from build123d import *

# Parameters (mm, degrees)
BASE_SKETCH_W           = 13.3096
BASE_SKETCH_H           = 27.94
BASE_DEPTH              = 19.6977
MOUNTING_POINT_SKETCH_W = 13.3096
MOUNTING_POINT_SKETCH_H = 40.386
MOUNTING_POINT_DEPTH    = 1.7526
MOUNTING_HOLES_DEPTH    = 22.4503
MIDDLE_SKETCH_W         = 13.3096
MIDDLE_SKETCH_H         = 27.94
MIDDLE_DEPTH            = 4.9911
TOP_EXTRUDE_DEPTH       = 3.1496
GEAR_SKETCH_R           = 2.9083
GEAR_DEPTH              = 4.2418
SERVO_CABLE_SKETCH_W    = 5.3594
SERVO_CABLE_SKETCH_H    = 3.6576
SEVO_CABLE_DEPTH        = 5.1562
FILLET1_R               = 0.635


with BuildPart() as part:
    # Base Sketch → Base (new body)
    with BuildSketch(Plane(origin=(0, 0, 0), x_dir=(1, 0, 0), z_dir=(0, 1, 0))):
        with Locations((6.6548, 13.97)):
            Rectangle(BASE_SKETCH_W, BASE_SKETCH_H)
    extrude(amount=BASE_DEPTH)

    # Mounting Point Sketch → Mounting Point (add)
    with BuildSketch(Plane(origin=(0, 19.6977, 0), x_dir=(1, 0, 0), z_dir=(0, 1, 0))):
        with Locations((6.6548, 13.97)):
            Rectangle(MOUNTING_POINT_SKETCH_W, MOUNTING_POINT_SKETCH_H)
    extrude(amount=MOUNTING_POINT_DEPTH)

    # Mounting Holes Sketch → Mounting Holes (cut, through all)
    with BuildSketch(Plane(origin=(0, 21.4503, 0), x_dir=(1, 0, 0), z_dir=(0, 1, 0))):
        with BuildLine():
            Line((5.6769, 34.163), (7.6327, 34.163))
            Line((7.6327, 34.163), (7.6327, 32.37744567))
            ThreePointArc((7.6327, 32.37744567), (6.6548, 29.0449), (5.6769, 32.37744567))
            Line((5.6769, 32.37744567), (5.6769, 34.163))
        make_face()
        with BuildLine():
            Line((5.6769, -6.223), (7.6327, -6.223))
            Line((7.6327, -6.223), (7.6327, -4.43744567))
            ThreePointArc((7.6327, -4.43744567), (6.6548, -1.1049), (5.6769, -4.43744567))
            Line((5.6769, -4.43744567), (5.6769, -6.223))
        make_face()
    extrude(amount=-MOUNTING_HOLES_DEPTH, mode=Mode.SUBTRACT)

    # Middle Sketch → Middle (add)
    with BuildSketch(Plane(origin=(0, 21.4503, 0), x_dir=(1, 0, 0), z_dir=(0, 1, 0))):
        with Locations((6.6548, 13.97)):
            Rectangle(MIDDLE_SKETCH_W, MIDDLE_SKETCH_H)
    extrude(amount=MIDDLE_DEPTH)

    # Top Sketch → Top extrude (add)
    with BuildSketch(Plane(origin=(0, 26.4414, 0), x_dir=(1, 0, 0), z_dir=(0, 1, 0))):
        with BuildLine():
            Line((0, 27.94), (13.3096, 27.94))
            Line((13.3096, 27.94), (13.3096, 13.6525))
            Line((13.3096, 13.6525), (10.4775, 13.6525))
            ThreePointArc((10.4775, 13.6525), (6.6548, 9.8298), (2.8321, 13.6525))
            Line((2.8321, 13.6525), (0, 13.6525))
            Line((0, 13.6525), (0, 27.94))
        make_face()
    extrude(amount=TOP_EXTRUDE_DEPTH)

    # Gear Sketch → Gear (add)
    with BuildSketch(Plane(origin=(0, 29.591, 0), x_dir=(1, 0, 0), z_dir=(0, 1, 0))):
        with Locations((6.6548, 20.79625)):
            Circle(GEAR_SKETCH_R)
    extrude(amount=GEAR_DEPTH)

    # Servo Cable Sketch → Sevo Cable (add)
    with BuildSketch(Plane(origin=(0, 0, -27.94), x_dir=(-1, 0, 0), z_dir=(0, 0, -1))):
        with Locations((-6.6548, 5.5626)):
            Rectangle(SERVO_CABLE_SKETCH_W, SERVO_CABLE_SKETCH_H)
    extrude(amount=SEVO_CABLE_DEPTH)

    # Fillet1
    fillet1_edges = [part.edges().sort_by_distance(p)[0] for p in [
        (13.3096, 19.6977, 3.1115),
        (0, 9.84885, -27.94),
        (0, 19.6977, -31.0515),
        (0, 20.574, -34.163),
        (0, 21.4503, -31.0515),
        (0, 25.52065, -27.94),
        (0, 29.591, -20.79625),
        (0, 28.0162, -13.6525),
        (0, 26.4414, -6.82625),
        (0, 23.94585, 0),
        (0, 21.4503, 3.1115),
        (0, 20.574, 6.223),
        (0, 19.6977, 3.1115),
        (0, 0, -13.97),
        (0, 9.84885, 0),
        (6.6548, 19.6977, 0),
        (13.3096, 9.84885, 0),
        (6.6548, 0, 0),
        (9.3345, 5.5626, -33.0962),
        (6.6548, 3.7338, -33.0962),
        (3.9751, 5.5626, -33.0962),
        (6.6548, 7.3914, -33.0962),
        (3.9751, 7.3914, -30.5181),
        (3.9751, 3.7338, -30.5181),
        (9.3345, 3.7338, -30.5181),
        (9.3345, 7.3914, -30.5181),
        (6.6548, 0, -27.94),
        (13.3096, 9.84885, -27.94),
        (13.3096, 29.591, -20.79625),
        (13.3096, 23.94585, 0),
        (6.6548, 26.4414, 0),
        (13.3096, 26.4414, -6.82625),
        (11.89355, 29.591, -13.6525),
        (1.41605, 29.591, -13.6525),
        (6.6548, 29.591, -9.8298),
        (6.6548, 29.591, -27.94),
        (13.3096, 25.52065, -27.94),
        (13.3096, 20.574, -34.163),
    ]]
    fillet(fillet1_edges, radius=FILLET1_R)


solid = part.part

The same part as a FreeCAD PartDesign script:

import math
import FreeCAD as App
import Part
import Sketcher
Q = App.Units.Quantity


def edges_at(feature, points):
    """Names of the edges that pass closest to the given points."""
    edges = feature.Shape.Edges
    near = lambda p: min(range(len(edges)), key=lambda i: edges[i].distToShape(Part.Vertex(*p))[0])
    return sorted({f"Edge{near(p) + 1}" for p in points})


def add_polygon(sketch, points):
    """Adds a closed chain of lines whose ends are joined by coincident constraints."""
    first, n = sketch.GeometryCount, len(points)
    for a, b in zip(points, points[1:] + points[:1]):
        sketch.addGeometry(Part.LineSegment(App.Vector(*a, 0), App.Vector(*b, 0)), False)
    for i in range(n):
        sketch.addConstraint(Sketcher.Constraint("Coincident", first + i, 2, first + (i + 1) % n, 1))

doc = App.newDocument("Part")
body = doc.addObject("PartDesign::Body", "Body")

# Sketch on XZ plane
sketch1 = doc.addObject("Sketcher::SketchObject", "Sketch")
body.addObject(sketch1)
sketch1.AttachmentSupport = (doc.XZ_Plane, [""])
sketch1.MapMode = "FlatFace"
add_polygon(sketch1, [(0, -28), (0, 0), (13, 0), (13, -28)])  # lines 0-3
sketch1.addConstraint(Sketcher.Constraint("Vertical", 0))
sketch1.addConstraint(Sketcher.Constraint("Horizontal", 1))
sketch1.addConstraint(Sketcher.Constraint("Vertical", 2))
sketch1.addConstraint(Sketcher.Constraint("Horizontal", 3))
sketch1.addConstraint(Sketcher.Constraint("Coincident", 0, 2, -1, 1))
sketch1.addConstraint(Sketcher.Constraint("DistanceY", 0, 1, 0, 2, Q("1.1 in")))
sketch1.addConstraint(Sketcher.Constraint("DistanceX", 1, 1, 1, 2, Q("0.524 in")))
pad1 = doc.addObject("PartDesign::Pad", "Pad")
body.addObject(pad1)
pad1.Profile = sketch1
pad1.Length = Q("0.7755 in")
pad1.Reversed = True

# Sketch on XZ plane
sketch2 = doc.addObject("Sketcher::SketchObject", "Sketch001")
body.addObject(sketch2)
sketch2.AttachmentSupport = (doc.XZ_Plane, [""])
sketch2.MapMode = "FlatFace"
sketch2.AttachmentOffset = App.Placement(App.Vector(0, 0, -0.7755 * 25.4), App.Rotation())
add_polygon(sketch2, [(0, -34), (0, 6), (13, 6), (13, -34)])  # lines 0-3
sketch2.addConstraint(Sketcher.Constraint("Vertical", 0))
sketch2.addConstraint(Sketcher.Constraint("Horizontal", 1))
sketch2.addConstraint(Sketcher.Constraint("Vertical", 2))
sketch2.addConstraint(Sketcher.Constraint("Horizontal", 3))
sketch2.addConstraint(Sketcher.Constraint("PointOnObject", 0, 2, -2))
sketch2.addConstraint(Sketcher.Constraint("DistanceY", 0, 1, 0, 2, Q("1.59 in")))
sketch2.addConstraint(Sketcher.Constraint("DistanceX", 1, 1, 1, 2, Q("0.524 in")))
sketch2.addConstraint(Sketcher.Constraint("DistanceY", -1, 1, 0, 2, Q("0.245 in")))
pad2 = doc.addObject("PartDesign::Pad", "Pad001")
body.addObject(pad2)
pad2.Profile = sketch2
pad2.Length = Q("0.069 in")
pad2.Reversed = True

# Sketch on XZ plane
sketch3 = doc.addObject("Sketcher::SketchObject", "Sketch002")
body.addObject(sketch3)
sketch3.AttachmentSupport = (doc.XZ_Plane, [""])
sketch3.MapMode = "FlatFace"
sketch3.AttachmentOffset = App.Placement(App.Vector(0, 0, -0.8445 * 25.4), App.Rotation())
sketch3.addGeometry(Part.LineSegment(App.Vector(7.6, -34.2, 0), App.Vector(5.7, -34.2, 0)), False)
sketch3.addGeometry(Part.LineSegment(App.Vector(5.7, -34.2, 0), App.Vector(5.7, -32.4, 0)), False)
sketch3.addGeometry(Part.ArcOfCircle(Part.Circle(App.Vector(6.7, -30.9, 0), App.Vector(0, 0, 1), 1.8), math.radians(-57), math.radians(237)), False)
sketch3.addGeometry(Part.LineSegment(App.Vector(7.6, -32.4, 0), App.Vector(7.6, -34.2, 0)), False)
sketch3.addGeometry(Part.LineSegment(App.Vector(5.7, 6.2, 0), App.Vector(7.6, 6.2, 0)), False)
sketch3.addGeometry(Part.LineSegment(App.Vector(7.6, 6.2, 0), App.Vector(7.6, 4.4, 0)), False)
sketch3.addGeometry(Part.ArcOfCircle(Part.Circle(App.Vector(6.7, 2.9, 0), App.Vector(0, 0, 1), 1.8), math.radians(123), math.radians(417)), False)
sketch3.addGeometry(Part.LineSegment(App.Vector(5.7, 4.4, 0), App.Vector(5.7, 6.2, 0)), False)
sketch3.addConstraint(Sketcher.Constraint("Coincident", 0, 2, 1, 1))
sketch3.addConstraint(Sketcher.Constraint("Coincident", 1, 2, 2, 2))
sketch3.addConstraint(Sketcher.Constraint("Coincident", 2, 1, 3, 1))
sketch3.addConstraint(Sketcher.Constraint("Coincident", 3, 2, 0, 1))
sketch3.addConstraint(Sketcher.Constraint("Coincident", 4, 2, 5, 1))
sketch3.addConstraint(Sketcher.Constraint("Coincident", 5, 2, 6, 2))
sketch3.addConstraint(Sketcher.Constraint("Coincident", 6, 1, 7, 1))
sketch3.addConstraint(Sketcher.Constraint("Coincident", 7, 2, 4, 1))
sketch3.addConstraint(Sketcher.Constraint("Horizontal", 0))
sketch3.addConstraint(Sketcher.Constraint("Vertical", 1))
sketch3.addConstraint(Sketcher.Constraint("Vertical", 3))
sketch3.addConstraint(Sketcher.Constraint("Horizontal", 4))
sketch3.addConstraint(Sketcher.Constraint("Vertical", 5))
sketch3.addConstraint(Sketcher.Constraint("Vertical", 7))
sketch3.addConstraint(Sketcher.Constraint("Equal", 2, 6))
sketch3.addConstraint(Sketcher.Constraint("Horizontal", 1, 2, 2, 1))
sketch3.addConstraint(Sketcher.Constraint("Horizontal", 5, 2, 6, 1))
sketch3.addConstraint(Sketcher.Constraint("Vertical", 2, 3, 6, 3))
sketch3.addConstraint(Sketcher.Constraint("Vertical", 3, 2, 4, 2))
sketch3.addConstraint(Sketcher.Constraint("Equal", 3, 5))
sketch3.addConstraint(Sketcher.Constraint("DistanceX", 0, 2, 0, 1, Q("0.077 in")))
sketch3.addConstraint(Sketcher.Constraint("DistanceY", 3, 2, 4, 2, Q("1.59 in")))
sketch3.addConstraint(Sketcher.Constraint("DistanceX", -1, 1, 2, 3, Q("0.262 in")))
sketch3.addConstraint(Sketcher.Constraint("DistanceY", 0, 2, -1, 1, Q("1.345 in")))
sketch3.addConstraint(Sketcher.Constraint("Radius", 2, Q("1.80975 mm")))
sketch3.addConstraint(Sketcher.Constraint("DistanceY", 2, 3, 6, 3, Q("1.3295 in")))
pocket1 = doc.addObject("PartDesign::Pocket", "Pocket")
body.addObject(pocket1)
pocket1.Profile = sketch3
pocket1.Type = "ThroughAll"
pocket1.Reversed = True

# Sketch on XZ plane
sketch4 = doc.addObject("Sketcher::SketchObject", "Sketch003")
body.addObject(sketch4)
sketch4.AttachmentSupport = (doc.XZ_Plane, [""])
sketch4.MapMode = "FlatFace"
sketch4.AttachmentOffset = App.Placement(App.Vector(0, 0, -0.8445 * 25.4), App.Rotation())
add_polygon(sketch4, [(0, -28), (0, 0), (13, 0), (13, -28)])  # lines 0-3
sketch4.addConstraint(Sketcher.Constraint("Vertical", 0))
sketch4.addConstraint(Sketcher.Constraint("Horizontal", 1))
sketch4.addConstraint(Sketcher.Constraint("Vertical", 2))
sketch4.addConstraint(Sketcher.Constraint("Horizontal", 3))
sketch4.addConstraint(Sketcher.Constraint("Coincident", 0, 2, -1, 1))
sketch4.addConstraint(Sketcher.Constraint("DistanceY", 0, 1, 0, 2, Q("1.1 in")))
sketch4.addConstraint(Sketcher.Constraint("DistanceX", 1, 1, 1, 2, Q("0.524 in")))
pad3 = doc.addObject("PartDesign::Pad", "Pad002")
body.addObject(pad3)
pad3.Profile = sketch4
pad3.Length = Q("0.1965 in")
pad3.Reversed = True

# Sketch on XZ plane
sketch5 = doc.addObject("Sketcher::SketchObject", "Sketch004")
body.addObject(sketch5)
sketch5.AttachmentSupport = (doc.XZ_Plane, [""])
sketch5.MapMode = "FlatFace"
sketch5.AttachmentOffset = App.Placement(App.Vector(0, 0, -1.041 * 25.4), App.Rotation())
sketch5.addGeometry(Part.LineSegment(App.Vector(13.3, -27.9, 0), App.Vector(0, -27.9, 0)), False)
sketch5.addGeometry(Part.LineSegment(App.Vector(0, -27.9, 0), App.Vector(0, -13.7, 0)), False)
sketch5.addGeometry(Part.LineSegment(App.Vector(0, -13.7, 0), App.Vector(2.8, -13.7, 0)), False)
sketch5.addGeometry(Part.ArcOfCircle(Part.Circle(App.Vector(6.7, -13.7, 0), App.Vector(0, 0, 1), 3.8), math.radians(0), math.radians(180)), False)
sketch5.addGeometry(Part.LineSegment(App.Vector(10.5, -13.7, 0), App.Vector(13.3, -13.7, 0)), False)
sketch5.addGeometry(Part.LineSegment(App.Vector(13.3, -13.7, 0), App.Vector(13.3, -27.9, 0)), False)
sketch5.addConstraint(Sketcher.Constraint("Coincident", 0, 2, 1, 1))
sketch5.addConstraint(Sketcher.Constraint("Coincident", 1, 2, 2, 1))
sketch5.addConstraint(Sketcher.Constraint("Coincident", 2, 2, 3, 2))
sketch5.addConstraint(Sketcher.Constraint("Coincident", 3, 1, 4, 1))
sketch5.addConstraint(Sketcher.Constraint("Coincident", 4, 2, 5, 1))
sketch5.addConstraint(Sketcher.Constraint("Coincident", 5, 2, 0, 1))
sketch5.addConstraint(Sketcher.Constraint("Horizontal", 0))
sketch5.addConstraint(Sketcher.Constraint("Vertical", 1))
sketch5.addConstraint(Sketcher.Constraint("Horizontal", 2))
sketch5.addConstraint(Sketcher.Constraint("Horizontal", 4))
sketch5.addConstraint(Sketcher.Constraint("Vertical", 5))
sketch5.addConstraint(Sketcher.Constraint("PointOnObject", 0, 2, -2))
sketch5.addConstraint(Sketcher.Constraint("Horizontal", 3, 3, 1, 2))
sketch5.addConstraint(Sketcher.Constraint("Horizontal", 2, 2, 3, 1))
sketch5.addConstraint(Sketcher.Constraint("Equal", 2, 4))
sketch5.addConstraint(Sketcher.Constraint("DistanceY", 0, 2, -1, 1, Q("1.1 in")))
sketch5.addConstraint(Sketcher.Constraint("Radius", 3, Q("0.1505 in")))
sketch5.addConstraint(Sketcher.Constraint("DistanceX", 0, 2, 0, 1, Q("0.524 in")))
sketch5.addConstraint(Sketcher.Constraint("DistanceY", 1, 1, 1, 2, Q("0.5625 in")))
pad4 = doc.addObject("PartDesign::Pad", "Pad003")
body.addObject(pad4)
pad4.Profile = sketch5
pad4.Length = Q("0.124 in")
pad4.Reversed = True

# Sketch on XZ plane
sketch6 = doc.addObject("Sketcher::SketchObject", "Sketch005")
body.addObject(sketch6)
sketch6.AttachmentSupport = (doc.XZ_Plane, [""])
sketch6.MapMode = "FlatFace"
sketch6.AttachmentOffset = App.Placement(App.Vector(0, 0, -1.165 * 25.4), App.Rotation())
sketch6.addGeometry(Part.Circle(App.Vector(6.7, -20.8, 0), App.Vector(0, 0, 1), 2.9), False)
sketch6.addConstraint(Sketcher.Constraint("Diameter", 0, Q("0.229 in")))
sketch6.addConstraint(Sketcher.Constraint("DistanceX", -1, 1, 0, 3, Q("0.262 in")))
sketch6.addConstraint(Sketcher.Constraint("DistanceY", 0, 3, -1, 1, Q("20.79625 mm")))
pad5 = doc.addObject("PartDesign::Pad", "Pad004")
body.addObject(pad5)
pad5.Profile = sketch6
pad5.Length = Q("0.167 in")
pad5.Reversed = True

# Sketch on XY plane
sketch7 = doc.addObject("Sketcher::SketchObject", "Sketch006")
body.addObject(sketch7)
sketch7.AttachmentSupport = (doc.XY_Plane, [""])
sketch7.MapMode = "FlatFace"
sketch7.AttachmentOffset = App.Placement(App.Vector(0, 0, -1.1 * 25.4), App.Rotation())
add_polygon(sketch7, [(9.3, 7.4), (9.3, 3.7), (4, 3.7), (4, 7.4)])  # lines 0-3
sketch7.addConstraint(Sketcher.Constraint("Vertical", 0))
sketch7.addConstraint(Sketcher.Constraint("Horizontal", 1))
sketch7.addConstraint(Sketcher.Constraint("Vertical", 2))
sketch7.addConstraint(Sketcher.Constraint("Horizontal", 3))
sketch7.addConstraint(Sketcher.Constraint("DistanceX", 1, 2, 1, 1, Q("0.211 in")))
sketch7.addConstraint(Sketcher.Constraint("DistanceY", 0, 2, 0, 1, Q("0.144 in")))
sketch7.addConstraint(Sketcher.Constraint("DistanceY", -1, 1, 0, 2, Q("0.147 in")))
sketch7.addConstraint(Sketcher.Constraint("DistanceX", -1, 1, 0, 2, Q("0.3675 in")))
pad6 = doc.addObject("PartDesign::Pad", "Pad005")
body.addObject(pad6)
pad6.Profile = sketch7
pad6.Length = Q("0.203 in")
pad6.Reversed = True
doc.recompute()

fillet = doc.addObject("PartDesign::Fillet", "Fillet")
body.addObject(fillet)
fillet.Base = (pad6, edges_at(pad6, [
    (13.31, 19.698, 3.111),
    (0, 9.849, -27.94),
    (0, 19.698, -31.052),
    (0, 20.574, -34.163),
    (0, 21.45, -31.052),
    (0, 25.521, -27.94),
    (0, 29.591, -20.796),
    (0, 28.016, -13.652),
    (0, 26.441, -6.826),
    (0, 23.946, 0),
    (0, 21.45, 3.111),
    (0, 20.574, 6.223),
    (0, 19.698, 3.111),
    (0, 0, -13.97),
    (0, 9.849, 0),
    (6.655, 19.698, 0),
    (13.31, 9.849, 0),
    (6.655, 0, 0),
    (9.335, 5.563, -33.096),
    (6.655, 3.734, -33.096),
    (3.975, 5.563, -33.096),
    (6.655, 7.391, -33.096),
    (3.975, 7.391, -30.518),
    (3.975, 3.734, -30.518),
    (9.335, 3.734, -30.518),
    (9.335, 7.391, -30.518),
    (6.655, 0, -27.94),
    (13.31, 9.849, -27.94),
    (13.31, 29.591, -20.796),
    (13.31, 23.946, 0),
    (6.655, 26.441, 0),
    (13.31, 26.441, -6.826),
    (11.894, 29.591, -13.652),
    (1.416, 29.591, -13.652),
    (6.655, 29.591, -9.83),
    (6.655, 29.591, -27.94),
    (13.31, 25.521, -27.94),
    (13.31, 20.574, -34.163),
]))
fillet.Radius = Q("0.025 in")

doc.recompute()
